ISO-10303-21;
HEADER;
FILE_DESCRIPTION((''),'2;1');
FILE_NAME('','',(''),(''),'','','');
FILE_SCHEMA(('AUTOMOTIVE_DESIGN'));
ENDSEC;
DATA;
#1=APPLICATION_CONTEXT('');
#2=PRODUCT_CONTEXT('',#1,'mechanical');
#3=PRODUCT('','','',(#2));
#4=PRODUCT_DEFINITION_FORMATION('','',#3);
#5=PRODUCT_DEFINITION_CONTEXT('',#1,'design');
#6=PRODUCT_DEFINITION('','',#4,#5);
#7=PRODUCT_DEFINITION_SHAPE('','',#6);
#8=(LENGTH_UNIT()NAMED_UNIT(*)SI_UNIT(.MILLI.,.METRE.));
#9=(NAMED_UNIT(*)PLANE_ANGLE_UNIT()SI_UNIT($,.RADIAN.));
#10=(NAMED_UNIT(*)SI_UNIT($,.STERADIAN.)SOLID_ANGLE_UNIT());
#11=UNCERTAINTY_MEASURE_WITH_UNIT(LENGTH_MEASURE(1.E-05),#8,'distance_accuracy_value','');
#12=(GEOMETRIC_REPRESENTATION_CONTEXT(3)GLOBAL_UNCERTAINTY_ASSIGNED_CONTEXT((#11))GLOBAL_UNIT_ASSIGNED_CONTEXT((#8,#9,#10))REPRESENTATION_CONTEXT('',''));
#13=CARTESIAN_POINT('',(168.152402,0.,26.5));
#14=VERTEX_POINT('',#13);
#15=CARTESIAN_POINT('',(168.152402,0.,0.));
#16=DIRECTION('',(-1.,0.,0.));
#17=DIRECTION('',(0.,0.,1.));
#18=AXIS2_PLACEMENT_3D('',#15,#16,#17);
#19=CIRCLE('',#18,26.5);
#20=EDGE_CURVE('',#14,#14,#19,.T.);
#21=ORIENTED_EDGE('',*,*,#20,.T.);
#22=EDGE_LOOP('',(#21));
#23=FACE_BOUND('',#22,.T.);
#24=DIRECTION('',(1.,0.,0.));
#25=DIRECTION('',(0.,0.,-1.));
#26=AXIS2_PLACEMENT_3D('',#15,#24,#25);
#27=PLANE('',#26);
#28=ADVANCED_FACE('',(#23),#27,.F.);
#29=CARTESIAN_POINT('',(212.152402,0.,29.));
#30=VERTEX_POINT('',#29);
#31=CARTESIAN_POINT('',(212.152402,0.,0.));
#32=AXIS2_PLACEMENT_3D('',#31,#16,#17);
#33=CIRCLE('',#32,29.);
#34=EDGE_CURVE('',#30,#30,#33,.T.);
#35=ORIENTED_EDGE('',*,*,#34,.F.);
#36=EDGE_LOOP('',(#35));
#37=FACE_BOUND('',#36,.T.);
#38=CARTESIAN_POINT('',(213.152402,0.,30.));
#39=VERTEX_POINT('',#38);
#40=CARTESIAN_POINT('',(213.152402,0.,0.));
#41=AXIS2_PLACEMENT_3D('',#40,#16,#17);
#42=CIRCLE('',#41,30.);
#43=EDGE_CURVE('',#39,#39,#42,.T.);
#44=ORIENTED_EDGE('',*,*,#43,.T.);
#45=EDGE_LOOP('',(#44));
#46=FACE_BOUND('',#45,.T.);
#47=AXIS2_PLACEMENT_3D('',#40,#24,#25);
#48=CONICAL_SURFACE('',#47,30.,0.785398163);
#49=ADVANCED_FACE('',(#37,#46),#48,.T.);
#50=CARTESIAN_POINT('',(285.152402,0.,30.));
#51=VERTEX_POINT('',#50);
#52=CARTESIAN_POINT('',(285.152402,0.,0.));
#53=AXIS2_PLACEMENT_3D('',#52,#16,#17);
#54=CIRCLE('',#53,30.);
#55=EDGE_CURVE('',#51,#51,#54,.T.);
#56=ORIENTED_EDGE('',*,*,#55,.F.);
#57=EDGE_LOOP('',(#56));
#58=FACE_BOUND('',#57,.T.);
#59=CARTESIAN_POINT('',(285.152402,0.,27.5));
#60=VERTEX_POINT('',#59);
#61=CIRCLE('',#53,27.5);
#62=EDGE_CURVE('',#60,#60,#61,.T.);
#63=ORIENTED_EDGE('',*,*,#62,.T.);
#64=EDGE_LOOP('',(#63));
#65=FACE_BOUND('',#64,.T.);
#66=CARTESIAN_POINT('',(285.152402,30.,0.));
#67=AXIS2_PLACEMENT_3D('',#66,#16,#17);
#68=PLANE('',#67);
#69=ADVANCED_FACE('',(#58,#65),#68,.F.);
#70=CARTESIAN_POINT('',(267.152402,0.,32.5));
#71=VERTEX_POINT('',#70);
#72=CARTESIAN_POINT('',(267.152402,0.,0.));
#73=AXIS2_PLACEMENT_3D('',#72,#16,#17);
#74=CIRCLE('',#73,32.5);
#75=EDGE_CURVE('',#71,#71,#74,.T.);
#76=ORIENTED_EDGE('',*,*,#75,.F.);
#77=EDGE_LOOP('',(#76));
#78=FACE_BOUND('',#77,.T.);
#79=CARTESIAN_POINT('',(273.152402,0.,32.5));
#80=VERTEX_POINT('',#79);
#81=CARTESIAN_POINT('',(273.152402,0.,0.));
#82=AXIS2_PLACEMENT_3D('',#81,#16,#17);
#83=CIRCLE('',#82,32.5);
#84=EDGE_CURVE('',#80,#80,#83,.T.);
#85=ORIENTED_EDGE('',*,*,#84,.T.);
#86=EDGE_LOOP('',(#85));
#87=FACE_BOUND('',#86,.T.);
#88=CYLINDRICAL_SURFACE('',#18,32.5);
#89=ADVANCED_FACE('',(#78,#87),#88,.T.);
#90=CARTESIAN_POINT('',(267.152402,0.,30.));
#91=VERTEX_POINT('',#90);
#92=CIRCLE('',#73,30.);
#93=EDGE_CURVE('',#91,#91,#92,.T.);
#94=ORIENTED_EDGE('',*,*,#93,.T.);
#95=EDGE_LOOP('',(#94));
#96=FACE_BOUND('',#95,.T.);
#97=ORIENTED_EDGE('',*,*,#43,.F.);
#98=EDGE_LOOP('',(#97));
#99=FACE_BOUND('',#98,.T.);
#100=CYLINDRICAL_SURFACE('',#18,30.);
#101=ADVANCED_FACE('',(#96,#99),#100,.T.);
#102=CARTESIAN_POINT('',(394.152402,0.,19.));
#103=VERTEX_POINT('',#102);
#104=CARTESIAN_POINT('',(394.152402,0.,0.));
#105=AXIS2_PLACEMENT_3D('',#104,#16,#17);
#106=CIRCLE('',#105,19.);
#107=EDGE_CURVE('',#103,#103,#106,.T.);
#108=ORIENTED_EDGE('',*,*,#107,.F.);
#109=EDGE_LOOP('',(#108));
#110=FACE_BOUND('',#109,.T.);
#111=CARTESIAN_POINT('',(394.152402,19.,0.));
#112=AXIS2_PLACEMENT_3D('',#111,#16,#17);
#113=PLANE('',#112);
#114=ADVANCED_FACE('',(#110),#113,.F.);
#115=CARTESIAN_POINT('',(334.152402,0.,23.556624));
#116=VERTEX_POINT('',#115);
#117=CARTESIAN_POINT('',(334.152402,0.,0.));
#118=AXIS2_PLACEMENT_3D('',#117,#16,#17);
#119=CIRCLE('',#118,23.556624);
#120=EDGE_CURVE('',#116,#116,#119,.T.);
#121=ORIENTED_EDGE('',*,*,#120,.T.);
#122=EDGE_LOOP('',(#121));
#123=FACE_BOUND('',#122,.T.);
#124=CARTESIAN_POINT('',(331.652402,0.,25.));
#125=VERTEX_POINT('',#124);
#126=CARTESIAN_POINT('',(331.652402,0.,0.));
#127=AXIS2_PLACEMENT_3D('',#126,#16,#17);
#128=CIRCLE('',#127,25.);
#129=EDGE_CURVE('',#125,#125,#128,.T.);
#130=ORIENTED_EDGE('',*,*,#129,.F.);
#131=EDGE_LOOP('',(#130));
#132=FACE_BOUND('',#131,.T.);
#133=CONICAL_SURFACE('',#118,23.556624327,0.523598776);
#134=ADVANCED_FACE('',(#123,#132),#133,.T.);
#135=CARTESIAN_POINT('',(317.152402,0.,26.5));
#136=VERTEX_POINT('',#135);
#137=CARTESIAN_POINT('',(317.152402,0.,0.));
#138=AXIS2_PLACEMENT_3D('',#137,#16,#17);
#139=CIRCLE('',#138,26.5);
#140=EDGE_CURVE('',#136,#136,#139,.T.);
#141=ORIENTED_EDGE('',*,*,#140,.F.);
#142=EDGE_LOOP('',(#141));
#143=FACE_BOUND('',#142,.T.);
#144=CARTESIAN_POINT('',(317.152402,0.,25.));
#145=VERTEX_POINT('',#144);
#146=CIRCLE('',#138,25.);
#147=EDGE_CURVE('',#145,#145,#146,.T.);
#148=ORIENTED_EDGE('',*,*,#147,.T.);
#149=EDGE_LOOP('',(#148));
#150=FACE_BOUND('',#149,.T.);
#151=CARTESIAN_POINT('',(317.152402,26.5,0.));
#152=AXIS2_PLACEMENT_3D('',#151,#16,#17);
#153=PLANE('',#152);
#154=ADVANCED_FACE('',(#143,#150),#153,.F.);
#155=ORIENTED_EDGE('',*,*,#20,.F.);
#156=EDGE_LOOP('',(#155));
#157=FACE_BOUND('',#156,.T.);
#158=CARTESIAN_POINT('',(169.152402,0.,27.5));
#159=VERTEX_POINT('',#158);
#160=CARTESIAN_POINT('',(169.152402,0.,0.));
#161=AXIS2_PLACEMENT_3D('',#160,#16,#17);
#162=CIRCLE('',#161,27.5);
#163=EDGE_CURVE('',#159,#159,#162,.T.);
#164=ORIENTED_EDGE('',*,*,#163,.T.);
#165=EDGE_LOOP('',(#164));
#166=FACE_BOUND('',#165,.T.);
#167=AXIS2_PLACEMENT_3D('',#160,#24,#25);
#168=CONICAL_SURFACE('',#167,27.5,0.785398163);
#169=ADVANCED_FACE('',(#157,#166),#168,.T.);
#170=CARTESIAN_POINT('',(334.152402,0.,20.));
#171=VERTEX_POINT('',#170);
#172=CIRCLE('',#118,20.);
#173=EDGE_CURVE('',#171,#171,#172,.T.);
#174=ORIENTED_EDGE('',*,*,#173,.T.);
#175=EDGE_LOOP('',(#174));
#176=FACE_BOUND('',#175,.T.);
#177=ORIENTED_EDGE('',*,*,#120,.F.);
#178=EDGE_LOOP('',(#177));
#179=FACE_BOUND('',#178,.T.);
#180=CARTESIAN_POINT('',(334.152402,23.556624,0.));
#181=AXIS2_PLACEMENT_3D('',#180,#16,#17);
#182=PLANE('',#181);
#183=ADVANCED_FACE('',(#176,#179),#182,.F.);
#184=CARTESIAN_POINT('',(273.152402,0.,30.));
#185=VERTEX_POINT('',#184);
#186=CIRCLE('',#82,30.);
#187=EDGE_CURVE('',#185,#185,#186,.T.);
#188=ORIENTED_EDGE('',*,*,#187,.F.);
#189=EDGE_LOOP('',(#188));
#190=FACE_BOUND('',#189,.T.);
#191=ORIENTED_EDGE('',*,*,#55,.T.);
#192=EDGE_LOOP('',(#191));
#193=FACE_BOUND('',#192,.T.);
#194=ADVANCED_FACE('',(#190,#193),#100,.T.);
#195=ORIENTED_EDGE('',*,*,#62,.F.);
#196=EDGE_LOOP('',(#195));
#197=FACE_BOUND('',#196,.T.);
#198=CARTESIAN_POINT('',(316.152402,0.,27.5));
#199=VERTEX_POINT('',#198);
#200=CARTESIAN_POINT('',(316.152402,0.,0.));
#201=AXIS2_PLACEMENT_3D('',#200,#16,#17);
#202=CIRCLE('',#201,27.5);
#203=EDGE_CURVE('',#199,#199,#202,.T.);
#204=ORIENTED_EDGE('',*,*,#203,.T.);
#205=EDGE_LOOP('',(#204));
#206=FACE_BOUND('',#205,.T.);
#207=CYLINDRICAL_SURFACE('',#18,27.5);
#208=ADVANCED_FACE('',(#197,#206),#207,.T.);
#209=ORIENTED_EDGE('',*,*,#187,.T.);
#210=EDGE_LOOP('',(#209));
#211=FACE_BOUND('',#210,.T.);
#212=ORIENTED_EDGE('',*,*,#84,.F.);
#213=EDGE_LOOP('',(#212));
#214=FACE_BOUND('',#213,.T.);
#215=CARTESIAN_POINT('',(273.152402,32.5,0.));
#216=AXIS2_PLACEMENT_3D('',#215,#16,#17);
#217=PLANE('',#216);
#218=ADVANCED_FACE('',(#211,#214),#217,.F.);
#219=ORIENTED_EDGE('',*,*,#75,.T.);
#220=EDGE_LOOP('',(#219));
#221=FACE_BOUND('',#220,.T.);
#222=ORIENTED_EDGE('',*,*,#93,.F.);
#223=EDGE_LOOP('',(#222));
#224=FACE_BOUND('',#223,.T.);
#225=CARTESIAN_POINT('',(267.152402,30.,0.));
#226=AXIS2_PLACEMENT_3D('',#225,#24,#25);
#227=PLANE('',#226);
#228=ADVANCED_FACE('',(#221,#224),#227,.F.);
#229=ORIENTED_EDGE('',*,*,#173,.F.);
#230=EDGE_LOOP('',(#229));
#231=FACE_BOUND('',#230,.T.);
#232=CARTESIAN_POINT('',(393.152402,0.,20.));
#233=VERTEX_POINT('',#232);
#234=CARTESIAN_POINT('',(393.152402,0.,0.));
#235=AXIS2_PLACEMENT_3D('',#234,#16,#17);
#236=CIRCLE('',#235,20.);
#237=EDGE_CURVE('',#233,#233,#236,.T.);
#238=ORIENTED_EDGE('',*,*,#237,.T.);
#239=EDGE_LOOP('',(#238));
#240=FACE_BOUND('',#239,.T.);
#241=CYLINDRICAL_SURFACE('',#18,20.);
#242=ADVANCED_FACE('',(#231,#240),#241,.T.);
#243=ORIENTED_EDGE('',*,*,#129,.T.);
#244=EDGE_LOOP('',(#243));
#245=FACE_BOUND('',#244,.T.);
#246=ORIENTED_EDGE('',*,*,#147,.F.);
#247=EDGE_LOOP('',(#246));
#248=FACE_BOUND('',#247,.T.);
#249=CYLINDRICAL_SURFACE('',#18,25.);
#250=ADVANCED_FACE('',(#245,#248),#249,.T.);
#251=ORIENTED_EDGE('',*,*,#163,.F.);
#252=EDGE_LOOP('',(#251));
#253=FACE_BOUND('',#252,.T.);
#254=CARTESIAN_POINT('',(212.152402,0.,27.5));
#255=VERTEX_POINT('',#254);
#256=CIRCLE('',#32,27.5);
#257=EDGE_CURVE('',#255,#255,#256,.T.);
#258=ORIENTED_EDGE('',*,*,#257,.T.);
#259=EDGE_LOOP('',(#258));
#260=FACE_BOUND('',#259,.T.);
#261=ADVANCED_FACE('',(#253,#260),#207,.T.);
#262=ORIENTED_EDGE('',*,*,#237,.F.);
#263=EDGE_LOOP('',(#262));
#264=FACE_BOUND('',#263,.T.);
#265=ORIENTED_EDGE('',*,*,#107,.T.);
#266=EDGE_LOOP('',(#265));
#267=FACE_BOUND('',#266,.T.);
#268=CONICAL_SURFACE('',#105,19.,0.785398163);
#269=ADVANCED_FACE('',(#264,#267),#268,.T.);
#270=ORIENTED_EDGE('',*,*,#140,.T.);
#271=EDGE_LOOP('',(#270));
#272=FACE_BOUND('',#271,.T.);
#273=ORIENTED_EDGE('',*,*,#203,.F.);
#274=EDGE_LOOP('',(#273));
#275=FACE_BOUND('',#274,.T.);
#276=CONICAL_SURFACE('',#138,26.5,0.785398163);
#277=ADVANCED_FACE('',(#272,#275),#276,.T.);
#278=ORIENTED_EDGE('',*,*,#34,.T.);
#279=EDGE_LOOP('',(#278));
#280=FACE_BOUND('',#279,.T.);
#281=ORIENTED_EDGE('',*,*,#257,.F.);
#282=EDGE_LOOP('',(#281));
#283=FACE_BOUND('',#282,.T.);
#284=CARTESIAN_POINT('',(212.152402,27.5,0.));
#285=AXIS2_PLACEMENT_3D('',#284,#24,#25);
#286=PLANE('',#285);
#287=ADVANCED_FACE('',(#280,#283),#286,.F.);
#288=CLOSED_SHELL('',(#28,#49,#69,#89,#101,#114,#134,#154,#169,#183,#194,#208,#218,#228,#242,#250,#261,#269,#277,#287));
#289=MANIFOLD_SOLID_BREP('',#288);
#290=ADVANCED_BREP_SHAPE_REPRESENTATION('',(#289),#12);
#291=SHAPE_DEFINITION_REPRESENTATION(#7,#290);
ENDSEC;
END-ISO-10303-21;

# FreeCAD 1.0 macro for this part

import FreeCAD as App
import Part
import Sketcher

V = App.Vector
Q = App.Units.Quantity

doc = App.newDocument("Part")
body = doc.addObject("PartDesign::Body", "Body")

# Sketch on XY plane
sketch1 = body.newObject("Sketcher::SketchObject", "Sketch")
sketch1.AttachmentSupport = (doc.getObject("XY_Plane"), [""])
sketch1.MapMode = "FlatFace"
sketch1.addGeometry(Part.LineSegment(V(168.2, 26.5, 0), V(168.2, 0, 0)), False)
sketch1.addGeometry(Part.LineSegment(V(168.2, 0, 0), V(394.2, 0, 0)), False)
sketch1.addGeometry(Part.LineSegment(V(394.2, 0, 0), V(394.2, 19, 0)), False)
sketch1.addGeometry(Part.LineSegment(V(394.2, 19, 0), V(393.2, 20, 0)), False)
sketch1.addGeometry(Part.LineSegment(V(393.2, 20, 0), V(334.2, 20, 0)), False)
sketch1.addGeometry(Part.LineSegment(V(334.2, 20, 0), V(334.2, 23.6, 0)), False)
sketch1.addGeometry(Part.LineSegment(V(334.2, 23.6, 0), V(331.7, 25, 0)), False)
sketch1.addGeometry(Part.LineSegment(V(331.7, 25, 0), V(317.2, 25, 0)), False)
sketch1.addGeometry(Part.LineSegment(V(317.2, 25, 0), V(317.2, 26.5, 0)), False)
sketch1.addGeometry(Part.LineSegment(V(317.2, 26.5, 0), V(316.2, 27.5, 0)), False)
sketch1.addGeometry(Part.LineSegment(V(316.2, 27.5, 0), V(285.2, 27.5, 0)), False)
sketch1.addGeometry(Part.LineSegment(V(285.2, 27.5, 0), V(285.2, 30, 0)), False)
sketch1.addGeometry(Part.LineSegment(V(285.2, 30, 0), V(273.2, 30, 0)), False)
sketch1.addGeometry(Part.LineSegment(V(273.2, 30, 0), V(273.2, 32.5, 0)), False)
sketch1.addGeometry(Part.LineSegment(V(273.2, 32.5, 0), V(267.2, 32.5, 0)), False)
sketch1.addGeometry(Part.LineSegment(V(267.2, 32.5, 0), V(267.2, 30, 0)), False)
sketch1.addGeometry(Part.LineSegment(V(267.2, 30, 0), V(213.2, 30, 0)), False)
sketch1.addGeometry(Part.LineSegment(V(213.2, 30, 0), V(212.2, 29, 0)), False)
sketch1.addGeometry(Part.LineSegment(V(212.2, 29, 0), V(212.2, 27.5, 0)), False)
sketch1.addGeometry(Part.LineSegment(V(212.2, 27.5, 0), V(169.2, 27.5, 0)), False)
sketch1.addGeometry(Part.LineSegment(V(169.2, 27.5, 0), V(168.2, 26.5, 0)), False)
sketch1.addConstraint(Sketcher.Constraint("Coincident", 0, 2, 1, 1))
sketch1.addConstraint(Sketcher.Constraint("Coincident", 1, 2, 2, 1))
sketch1.addConstraint(Sketcher.Constraint("Coincident", 2, 2, 3, 1))
sketch1.addConstraint(Sketcher.Constraint("Coincident", 3, 2, 4, 1))
sketch1.addConstraint(Sketcher.Constraint("Coincident", 4, 2, 5, 1))
sketch1.addConstraint(Sketcher.Constraint("Coincident", 5, 2, 6, 1))
sketch1.addConstraint(Sketcher.Constraint("Coincident", 6, 2, 7, 1))
sketch1.addConstraint(Sketcher.Constraint("Coincident", 7, 2, 8, 1))
sketch1.addConstraint(Sketcher.Constraint("Coincident", 8, 2, 9, 1))
sketch1.addConstraint(Sketcher.Constraint("Coincident", 9, 2, 10, 1))
sketch1.addConstraint(Sketcher.Constraint("Coincident", 10, 2, 11, 1))
sketch1.addConstraint(Sketcher.Constraint("Coincident", 11, 2, 12, 1))
sketch1.addConstraint(Sketcher.Constraint("Coincident", 12, 2, 13, 1))
sketch1.addConstraint(Sketcher.Constraint("Coincident", 13, 2, 14, 1))
sketch1.addConstraint(Sketcher.Constraint("Coincident", 14, 2, 15, 1))
sketch1.addConstraint(Sketcher.Constraint("Coincident", 15, 2, 16, 1))
sketch1.addConstraint(Sketcher.Constraint("Coincident", 16, 2, 17, 1))
sketch1.addConstraint(Sketcher.Constraint("Coincident", 17, 2, 18, 1))
sketch1.addConstraint(Sketcher.Constraint("Coincident", 18, 2, 19, 1))
sketch1.addConstraint(Sketcher.Constraint("Coincident", 19, 2, 20, 1))
sketch1.addConstraint(Sketcher.Constraint("Coincident", 20, 2, 0, 1))
sketch1.addConstraint(Sketcher.Constraint("Vertical", 0))
sketch1.addConstraint(Sketcher.Constraint("Horizontal", 1))
sketch1.addConstraint(Sketcher.Constraint("Vertical", 2))
sketch1.addConstraint(Sketcher.Constraint("Horizontal", 4))
sketch1.addConstraint(Sketcher.Constraint("Vertical", 5))
sketch1.addConstraint(Sketcher.Constraint("Horizontal", 7))
sketch1.addConstraint(Sketcher.Constraint("Vertical", 8))
sketch1.addConstraint(Sketcher.Constraint("Horizontal", 10))
sketch1.addConstraint(Sketcher.Constraint("Vertical", 11))
sketch1.addConstraint(Sketcher.Constraint("Horizontal", 12))
sketch1.addConstraint(Sketcher.Constraint("Vertical", 13))
sketch1.addConstraint(Sketcher.Constraint("Horizontal", 14))
sketch1.addConstraint(Sketcher.Constraint("Vertical", 15))
sketch1.addConstraint(Sketcher.Constraint("Horizontal", 16))
sketch1.addConstraint(Sketcher.Constraint("Vertical", 18))
sketch1.addConstraint(Sketcher.Constraint("Horizontal", 19))
sketch1.addConstraint(Sketcher.Constraint("PointOnObject", 0, 2, -1))
sketch1.addConstraint(Sketcher.Constraint("Parallel", 3, 9))
sketch1.addConstraint(Sketcher.Constraint("Perpendicular", 9, 17))
sketch1.addConstraint(Sketcher.Constraint("Parallel", 17, 20))
sketch1.addConstraint(Sketcher.Constraint("Horizontal", 12, 2, 15, 2))
sketch1.addConstraint(Sketcher.Constraint("Horizontal", 10, 2, 18, 2))
sketch1.addConstraint(Sketcher.Constraint("Horizontal", 8, 2, 20, 2))
sketch1.addConstraint(Sketcher.Constraint("Equal", 11, 13))
sketch1.addConstraint(Sketcher.Constraint("Equal", 8, 18))
sketch1.addConstraint(Sketcher.Constraint("Equal", 3, 9))
sketch1.addConstraint(Sketcher.Constraint("Equal", 9, 17))
sketch1.addConstraint(Sketcher.Constraint("Equal", 17, 20))
sketch1.addConstraint(Sketcher.Constraint("DistanceX", 1, 1, 1, 2, Q("226 mm")))
sketch1.addConstraint(Sketcher.Constraint("DistanceX", 4, 2, 4, 1, Q("59 mm")))
sketch1.addConstraint(Sketcher.Constraint("DistanceX", 10, 2, 10, 1, Q("31 mm")))
sketch1.addConstraint(Sketcher.Constraint("DistanceX", 12, 2, 12, 1, Q("12 mm")))
sketch1.addConstraint(Sketcher.Constraint("DistanceX", 14, 2, 14, 1, Q("6 mm")))
sketch1.addConstraint(Sketcher.Constraint("DistanceX", 16, 2, 16, 1, Q("54 mm")))
sketch1.addConstraint(Sketcher.Constraint("DistanceX", 19, 2, 19, 1, Q("43 mm")))
sketch1.addConstraint(Sketcher.Constraint("DistanceY", 2, 1, 2, 2, Q("19 mm")))
sketch1.addConstraint(Sketcher.Constraint("Angle", 6, Q("150 deg")))
sketch1.addConstraint(Sketcher.Constraint("DistanceX", 7, 2, 7, 1, Q("14.5 mm")))
sketch1.addConstraint(Sketcher.Constraint("DistanceY", 0, 2, 0, 1, Q("26.5 mm")))
sketch1.addConstraint(Sketcher.Constraint("DistanceY", 8, 1, 8, 2, Q("1.5 mm")))
sketch1.addConstraint(Sketcher.Constraint("DistanceY", 11, 1, 11, 2, Q("2.5 mm")))
sketch1.addConstraint(Sketcher.Constraint("DistanceX", -1, 1, 0, 2, Q("168.152402 mm")))
revolution = body.newObject("PartDesign::Revolution", "Revolution")
revolution.Profile = sketch1
revolution.ReferenceAxis = (sketch1, ["H_Axis"])
revolution.Angle = 360

doc.recompute()
